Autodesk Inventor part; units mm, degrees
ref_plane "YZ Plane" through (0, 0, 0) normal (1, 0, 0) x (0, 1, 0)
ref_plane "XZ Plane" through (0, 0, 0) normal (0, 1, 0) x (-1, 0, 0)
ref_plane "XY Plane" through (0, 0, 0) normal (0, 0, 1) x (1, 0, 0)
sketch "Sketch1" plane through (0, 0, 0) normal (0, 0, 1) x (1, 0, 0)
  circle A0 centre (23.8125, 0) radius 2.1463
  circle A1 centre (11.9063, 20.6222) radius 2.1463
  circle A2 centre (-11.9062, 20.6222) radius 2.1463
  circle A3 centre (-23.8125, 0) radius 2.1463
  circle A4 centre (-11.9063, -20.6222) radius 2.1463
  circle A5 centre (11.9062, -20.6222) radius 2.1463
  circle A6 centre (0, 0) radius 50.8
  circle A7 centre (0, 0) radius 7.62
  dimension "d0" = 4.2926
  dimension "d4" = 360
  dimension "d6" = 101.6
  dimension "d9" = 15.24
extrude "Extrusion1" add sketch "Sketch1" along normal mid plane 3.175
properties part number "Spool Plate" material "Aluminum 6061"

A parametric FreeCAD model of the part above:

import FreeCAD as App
import Part
import Sketcher

V = App.Vector
Q = App.Units.Quantity

doc = App.newDocument("Part")
body = doc.addObject("PartDesign::Body", "Body")

# Sketch on XY plane
sketch1 = body.newObject("Sketcher::SketchObject", "Sketch")
sketch1.AttachmentSupport = (doc.getObject("XY_Plane"), [""])
sketch1.MapMode = "FlatFace"
sketch1.addGeometry([
    Part.Circle(V(0, 0, 0), V(0, 0, 1), 50.8),  # 0
    Part.Circle(V(-11.9063, -20.6222, 0), V(0, 0, 1), 2.1463),  # 1
    Part.Circle(V(-23.8125, 0, 0), V(0, 0, 1), 2.1463),  # 2
    Part.Circle(V(0, 0, 0), V(0, 0, 1), 7.62),  # 3
    Part.Circle(V(11.9062, -20.6222, 0), V(0, 0, 1), 2.1463),  # 4
    Part.Circle(V(23.8125, 0, 0), V(0, 0, 1), 2.1463),  # 5
    Part.Circle(V(-11.9062, 20.6222, 0), V(0, 0, 1), 2.1463),  # 6
    Part.Circle(V(11.9063, 20.6222, 0), V(0, 0, 1), 2.1463),  # 7
], False)
sketch1.addConstraint([
    Sketcher.Constraint("Coincident", 0, 3, -1, 1),
    Sketcher.Constraint("Coincident", 3, 3, -1, 1),
    Sketcher.Constraint("Equal", 1, 2),
    Sketcher.Constraint("Equal", 2, 4),
    Sketcher.Constraint("Equal", 4, 5),
    Sketcher.Constraint("Equal", 5, 6),
    Sketcher.Constraint("Equal", 6, 7),
    Sketcher.Constraint("Symmetric", 2, 3, 5, 3, -1, 1),
    Sketcher.Constraint("Symmetric", 4, 3, 6, 3, -1, 1),
    Sketcher.Constraint("Symmetric", 1, 3, 7, 3, -1, 1),
    Sketcher.Constraint("Symmetric", 1, 3, 4, 3, -2),
    Sketcher.Constraint("PointOnObject", 2, 3, -1),
    Sketcher.Constraint("Diameter", 0, Q("4 in")),
    Sketcher.Constraint("Diameter", 3, Q("0.6 in")),
    Sketcher.Constraint("Diameter", 1, Q("0.169 in")),
    Sketcher.Constraint("DistanceX", 1, 3, -1, 1, Q("0.468752 in")),
    Sketcher.Constraint("DistanceX", 2, 3, -1, 1, Q("0.9375 in")),
    Sketcher.Constraint("DistanceY", 1, 3, -1, 1, Q("0.8119 in")),
])
pad1 = body.newObject("PartDesign::Pad", "Pad")
pad1.Profile = sketch1
pad1.Length = Q("0.125 in")
pad1.Midplane = True

doc.recompute()
